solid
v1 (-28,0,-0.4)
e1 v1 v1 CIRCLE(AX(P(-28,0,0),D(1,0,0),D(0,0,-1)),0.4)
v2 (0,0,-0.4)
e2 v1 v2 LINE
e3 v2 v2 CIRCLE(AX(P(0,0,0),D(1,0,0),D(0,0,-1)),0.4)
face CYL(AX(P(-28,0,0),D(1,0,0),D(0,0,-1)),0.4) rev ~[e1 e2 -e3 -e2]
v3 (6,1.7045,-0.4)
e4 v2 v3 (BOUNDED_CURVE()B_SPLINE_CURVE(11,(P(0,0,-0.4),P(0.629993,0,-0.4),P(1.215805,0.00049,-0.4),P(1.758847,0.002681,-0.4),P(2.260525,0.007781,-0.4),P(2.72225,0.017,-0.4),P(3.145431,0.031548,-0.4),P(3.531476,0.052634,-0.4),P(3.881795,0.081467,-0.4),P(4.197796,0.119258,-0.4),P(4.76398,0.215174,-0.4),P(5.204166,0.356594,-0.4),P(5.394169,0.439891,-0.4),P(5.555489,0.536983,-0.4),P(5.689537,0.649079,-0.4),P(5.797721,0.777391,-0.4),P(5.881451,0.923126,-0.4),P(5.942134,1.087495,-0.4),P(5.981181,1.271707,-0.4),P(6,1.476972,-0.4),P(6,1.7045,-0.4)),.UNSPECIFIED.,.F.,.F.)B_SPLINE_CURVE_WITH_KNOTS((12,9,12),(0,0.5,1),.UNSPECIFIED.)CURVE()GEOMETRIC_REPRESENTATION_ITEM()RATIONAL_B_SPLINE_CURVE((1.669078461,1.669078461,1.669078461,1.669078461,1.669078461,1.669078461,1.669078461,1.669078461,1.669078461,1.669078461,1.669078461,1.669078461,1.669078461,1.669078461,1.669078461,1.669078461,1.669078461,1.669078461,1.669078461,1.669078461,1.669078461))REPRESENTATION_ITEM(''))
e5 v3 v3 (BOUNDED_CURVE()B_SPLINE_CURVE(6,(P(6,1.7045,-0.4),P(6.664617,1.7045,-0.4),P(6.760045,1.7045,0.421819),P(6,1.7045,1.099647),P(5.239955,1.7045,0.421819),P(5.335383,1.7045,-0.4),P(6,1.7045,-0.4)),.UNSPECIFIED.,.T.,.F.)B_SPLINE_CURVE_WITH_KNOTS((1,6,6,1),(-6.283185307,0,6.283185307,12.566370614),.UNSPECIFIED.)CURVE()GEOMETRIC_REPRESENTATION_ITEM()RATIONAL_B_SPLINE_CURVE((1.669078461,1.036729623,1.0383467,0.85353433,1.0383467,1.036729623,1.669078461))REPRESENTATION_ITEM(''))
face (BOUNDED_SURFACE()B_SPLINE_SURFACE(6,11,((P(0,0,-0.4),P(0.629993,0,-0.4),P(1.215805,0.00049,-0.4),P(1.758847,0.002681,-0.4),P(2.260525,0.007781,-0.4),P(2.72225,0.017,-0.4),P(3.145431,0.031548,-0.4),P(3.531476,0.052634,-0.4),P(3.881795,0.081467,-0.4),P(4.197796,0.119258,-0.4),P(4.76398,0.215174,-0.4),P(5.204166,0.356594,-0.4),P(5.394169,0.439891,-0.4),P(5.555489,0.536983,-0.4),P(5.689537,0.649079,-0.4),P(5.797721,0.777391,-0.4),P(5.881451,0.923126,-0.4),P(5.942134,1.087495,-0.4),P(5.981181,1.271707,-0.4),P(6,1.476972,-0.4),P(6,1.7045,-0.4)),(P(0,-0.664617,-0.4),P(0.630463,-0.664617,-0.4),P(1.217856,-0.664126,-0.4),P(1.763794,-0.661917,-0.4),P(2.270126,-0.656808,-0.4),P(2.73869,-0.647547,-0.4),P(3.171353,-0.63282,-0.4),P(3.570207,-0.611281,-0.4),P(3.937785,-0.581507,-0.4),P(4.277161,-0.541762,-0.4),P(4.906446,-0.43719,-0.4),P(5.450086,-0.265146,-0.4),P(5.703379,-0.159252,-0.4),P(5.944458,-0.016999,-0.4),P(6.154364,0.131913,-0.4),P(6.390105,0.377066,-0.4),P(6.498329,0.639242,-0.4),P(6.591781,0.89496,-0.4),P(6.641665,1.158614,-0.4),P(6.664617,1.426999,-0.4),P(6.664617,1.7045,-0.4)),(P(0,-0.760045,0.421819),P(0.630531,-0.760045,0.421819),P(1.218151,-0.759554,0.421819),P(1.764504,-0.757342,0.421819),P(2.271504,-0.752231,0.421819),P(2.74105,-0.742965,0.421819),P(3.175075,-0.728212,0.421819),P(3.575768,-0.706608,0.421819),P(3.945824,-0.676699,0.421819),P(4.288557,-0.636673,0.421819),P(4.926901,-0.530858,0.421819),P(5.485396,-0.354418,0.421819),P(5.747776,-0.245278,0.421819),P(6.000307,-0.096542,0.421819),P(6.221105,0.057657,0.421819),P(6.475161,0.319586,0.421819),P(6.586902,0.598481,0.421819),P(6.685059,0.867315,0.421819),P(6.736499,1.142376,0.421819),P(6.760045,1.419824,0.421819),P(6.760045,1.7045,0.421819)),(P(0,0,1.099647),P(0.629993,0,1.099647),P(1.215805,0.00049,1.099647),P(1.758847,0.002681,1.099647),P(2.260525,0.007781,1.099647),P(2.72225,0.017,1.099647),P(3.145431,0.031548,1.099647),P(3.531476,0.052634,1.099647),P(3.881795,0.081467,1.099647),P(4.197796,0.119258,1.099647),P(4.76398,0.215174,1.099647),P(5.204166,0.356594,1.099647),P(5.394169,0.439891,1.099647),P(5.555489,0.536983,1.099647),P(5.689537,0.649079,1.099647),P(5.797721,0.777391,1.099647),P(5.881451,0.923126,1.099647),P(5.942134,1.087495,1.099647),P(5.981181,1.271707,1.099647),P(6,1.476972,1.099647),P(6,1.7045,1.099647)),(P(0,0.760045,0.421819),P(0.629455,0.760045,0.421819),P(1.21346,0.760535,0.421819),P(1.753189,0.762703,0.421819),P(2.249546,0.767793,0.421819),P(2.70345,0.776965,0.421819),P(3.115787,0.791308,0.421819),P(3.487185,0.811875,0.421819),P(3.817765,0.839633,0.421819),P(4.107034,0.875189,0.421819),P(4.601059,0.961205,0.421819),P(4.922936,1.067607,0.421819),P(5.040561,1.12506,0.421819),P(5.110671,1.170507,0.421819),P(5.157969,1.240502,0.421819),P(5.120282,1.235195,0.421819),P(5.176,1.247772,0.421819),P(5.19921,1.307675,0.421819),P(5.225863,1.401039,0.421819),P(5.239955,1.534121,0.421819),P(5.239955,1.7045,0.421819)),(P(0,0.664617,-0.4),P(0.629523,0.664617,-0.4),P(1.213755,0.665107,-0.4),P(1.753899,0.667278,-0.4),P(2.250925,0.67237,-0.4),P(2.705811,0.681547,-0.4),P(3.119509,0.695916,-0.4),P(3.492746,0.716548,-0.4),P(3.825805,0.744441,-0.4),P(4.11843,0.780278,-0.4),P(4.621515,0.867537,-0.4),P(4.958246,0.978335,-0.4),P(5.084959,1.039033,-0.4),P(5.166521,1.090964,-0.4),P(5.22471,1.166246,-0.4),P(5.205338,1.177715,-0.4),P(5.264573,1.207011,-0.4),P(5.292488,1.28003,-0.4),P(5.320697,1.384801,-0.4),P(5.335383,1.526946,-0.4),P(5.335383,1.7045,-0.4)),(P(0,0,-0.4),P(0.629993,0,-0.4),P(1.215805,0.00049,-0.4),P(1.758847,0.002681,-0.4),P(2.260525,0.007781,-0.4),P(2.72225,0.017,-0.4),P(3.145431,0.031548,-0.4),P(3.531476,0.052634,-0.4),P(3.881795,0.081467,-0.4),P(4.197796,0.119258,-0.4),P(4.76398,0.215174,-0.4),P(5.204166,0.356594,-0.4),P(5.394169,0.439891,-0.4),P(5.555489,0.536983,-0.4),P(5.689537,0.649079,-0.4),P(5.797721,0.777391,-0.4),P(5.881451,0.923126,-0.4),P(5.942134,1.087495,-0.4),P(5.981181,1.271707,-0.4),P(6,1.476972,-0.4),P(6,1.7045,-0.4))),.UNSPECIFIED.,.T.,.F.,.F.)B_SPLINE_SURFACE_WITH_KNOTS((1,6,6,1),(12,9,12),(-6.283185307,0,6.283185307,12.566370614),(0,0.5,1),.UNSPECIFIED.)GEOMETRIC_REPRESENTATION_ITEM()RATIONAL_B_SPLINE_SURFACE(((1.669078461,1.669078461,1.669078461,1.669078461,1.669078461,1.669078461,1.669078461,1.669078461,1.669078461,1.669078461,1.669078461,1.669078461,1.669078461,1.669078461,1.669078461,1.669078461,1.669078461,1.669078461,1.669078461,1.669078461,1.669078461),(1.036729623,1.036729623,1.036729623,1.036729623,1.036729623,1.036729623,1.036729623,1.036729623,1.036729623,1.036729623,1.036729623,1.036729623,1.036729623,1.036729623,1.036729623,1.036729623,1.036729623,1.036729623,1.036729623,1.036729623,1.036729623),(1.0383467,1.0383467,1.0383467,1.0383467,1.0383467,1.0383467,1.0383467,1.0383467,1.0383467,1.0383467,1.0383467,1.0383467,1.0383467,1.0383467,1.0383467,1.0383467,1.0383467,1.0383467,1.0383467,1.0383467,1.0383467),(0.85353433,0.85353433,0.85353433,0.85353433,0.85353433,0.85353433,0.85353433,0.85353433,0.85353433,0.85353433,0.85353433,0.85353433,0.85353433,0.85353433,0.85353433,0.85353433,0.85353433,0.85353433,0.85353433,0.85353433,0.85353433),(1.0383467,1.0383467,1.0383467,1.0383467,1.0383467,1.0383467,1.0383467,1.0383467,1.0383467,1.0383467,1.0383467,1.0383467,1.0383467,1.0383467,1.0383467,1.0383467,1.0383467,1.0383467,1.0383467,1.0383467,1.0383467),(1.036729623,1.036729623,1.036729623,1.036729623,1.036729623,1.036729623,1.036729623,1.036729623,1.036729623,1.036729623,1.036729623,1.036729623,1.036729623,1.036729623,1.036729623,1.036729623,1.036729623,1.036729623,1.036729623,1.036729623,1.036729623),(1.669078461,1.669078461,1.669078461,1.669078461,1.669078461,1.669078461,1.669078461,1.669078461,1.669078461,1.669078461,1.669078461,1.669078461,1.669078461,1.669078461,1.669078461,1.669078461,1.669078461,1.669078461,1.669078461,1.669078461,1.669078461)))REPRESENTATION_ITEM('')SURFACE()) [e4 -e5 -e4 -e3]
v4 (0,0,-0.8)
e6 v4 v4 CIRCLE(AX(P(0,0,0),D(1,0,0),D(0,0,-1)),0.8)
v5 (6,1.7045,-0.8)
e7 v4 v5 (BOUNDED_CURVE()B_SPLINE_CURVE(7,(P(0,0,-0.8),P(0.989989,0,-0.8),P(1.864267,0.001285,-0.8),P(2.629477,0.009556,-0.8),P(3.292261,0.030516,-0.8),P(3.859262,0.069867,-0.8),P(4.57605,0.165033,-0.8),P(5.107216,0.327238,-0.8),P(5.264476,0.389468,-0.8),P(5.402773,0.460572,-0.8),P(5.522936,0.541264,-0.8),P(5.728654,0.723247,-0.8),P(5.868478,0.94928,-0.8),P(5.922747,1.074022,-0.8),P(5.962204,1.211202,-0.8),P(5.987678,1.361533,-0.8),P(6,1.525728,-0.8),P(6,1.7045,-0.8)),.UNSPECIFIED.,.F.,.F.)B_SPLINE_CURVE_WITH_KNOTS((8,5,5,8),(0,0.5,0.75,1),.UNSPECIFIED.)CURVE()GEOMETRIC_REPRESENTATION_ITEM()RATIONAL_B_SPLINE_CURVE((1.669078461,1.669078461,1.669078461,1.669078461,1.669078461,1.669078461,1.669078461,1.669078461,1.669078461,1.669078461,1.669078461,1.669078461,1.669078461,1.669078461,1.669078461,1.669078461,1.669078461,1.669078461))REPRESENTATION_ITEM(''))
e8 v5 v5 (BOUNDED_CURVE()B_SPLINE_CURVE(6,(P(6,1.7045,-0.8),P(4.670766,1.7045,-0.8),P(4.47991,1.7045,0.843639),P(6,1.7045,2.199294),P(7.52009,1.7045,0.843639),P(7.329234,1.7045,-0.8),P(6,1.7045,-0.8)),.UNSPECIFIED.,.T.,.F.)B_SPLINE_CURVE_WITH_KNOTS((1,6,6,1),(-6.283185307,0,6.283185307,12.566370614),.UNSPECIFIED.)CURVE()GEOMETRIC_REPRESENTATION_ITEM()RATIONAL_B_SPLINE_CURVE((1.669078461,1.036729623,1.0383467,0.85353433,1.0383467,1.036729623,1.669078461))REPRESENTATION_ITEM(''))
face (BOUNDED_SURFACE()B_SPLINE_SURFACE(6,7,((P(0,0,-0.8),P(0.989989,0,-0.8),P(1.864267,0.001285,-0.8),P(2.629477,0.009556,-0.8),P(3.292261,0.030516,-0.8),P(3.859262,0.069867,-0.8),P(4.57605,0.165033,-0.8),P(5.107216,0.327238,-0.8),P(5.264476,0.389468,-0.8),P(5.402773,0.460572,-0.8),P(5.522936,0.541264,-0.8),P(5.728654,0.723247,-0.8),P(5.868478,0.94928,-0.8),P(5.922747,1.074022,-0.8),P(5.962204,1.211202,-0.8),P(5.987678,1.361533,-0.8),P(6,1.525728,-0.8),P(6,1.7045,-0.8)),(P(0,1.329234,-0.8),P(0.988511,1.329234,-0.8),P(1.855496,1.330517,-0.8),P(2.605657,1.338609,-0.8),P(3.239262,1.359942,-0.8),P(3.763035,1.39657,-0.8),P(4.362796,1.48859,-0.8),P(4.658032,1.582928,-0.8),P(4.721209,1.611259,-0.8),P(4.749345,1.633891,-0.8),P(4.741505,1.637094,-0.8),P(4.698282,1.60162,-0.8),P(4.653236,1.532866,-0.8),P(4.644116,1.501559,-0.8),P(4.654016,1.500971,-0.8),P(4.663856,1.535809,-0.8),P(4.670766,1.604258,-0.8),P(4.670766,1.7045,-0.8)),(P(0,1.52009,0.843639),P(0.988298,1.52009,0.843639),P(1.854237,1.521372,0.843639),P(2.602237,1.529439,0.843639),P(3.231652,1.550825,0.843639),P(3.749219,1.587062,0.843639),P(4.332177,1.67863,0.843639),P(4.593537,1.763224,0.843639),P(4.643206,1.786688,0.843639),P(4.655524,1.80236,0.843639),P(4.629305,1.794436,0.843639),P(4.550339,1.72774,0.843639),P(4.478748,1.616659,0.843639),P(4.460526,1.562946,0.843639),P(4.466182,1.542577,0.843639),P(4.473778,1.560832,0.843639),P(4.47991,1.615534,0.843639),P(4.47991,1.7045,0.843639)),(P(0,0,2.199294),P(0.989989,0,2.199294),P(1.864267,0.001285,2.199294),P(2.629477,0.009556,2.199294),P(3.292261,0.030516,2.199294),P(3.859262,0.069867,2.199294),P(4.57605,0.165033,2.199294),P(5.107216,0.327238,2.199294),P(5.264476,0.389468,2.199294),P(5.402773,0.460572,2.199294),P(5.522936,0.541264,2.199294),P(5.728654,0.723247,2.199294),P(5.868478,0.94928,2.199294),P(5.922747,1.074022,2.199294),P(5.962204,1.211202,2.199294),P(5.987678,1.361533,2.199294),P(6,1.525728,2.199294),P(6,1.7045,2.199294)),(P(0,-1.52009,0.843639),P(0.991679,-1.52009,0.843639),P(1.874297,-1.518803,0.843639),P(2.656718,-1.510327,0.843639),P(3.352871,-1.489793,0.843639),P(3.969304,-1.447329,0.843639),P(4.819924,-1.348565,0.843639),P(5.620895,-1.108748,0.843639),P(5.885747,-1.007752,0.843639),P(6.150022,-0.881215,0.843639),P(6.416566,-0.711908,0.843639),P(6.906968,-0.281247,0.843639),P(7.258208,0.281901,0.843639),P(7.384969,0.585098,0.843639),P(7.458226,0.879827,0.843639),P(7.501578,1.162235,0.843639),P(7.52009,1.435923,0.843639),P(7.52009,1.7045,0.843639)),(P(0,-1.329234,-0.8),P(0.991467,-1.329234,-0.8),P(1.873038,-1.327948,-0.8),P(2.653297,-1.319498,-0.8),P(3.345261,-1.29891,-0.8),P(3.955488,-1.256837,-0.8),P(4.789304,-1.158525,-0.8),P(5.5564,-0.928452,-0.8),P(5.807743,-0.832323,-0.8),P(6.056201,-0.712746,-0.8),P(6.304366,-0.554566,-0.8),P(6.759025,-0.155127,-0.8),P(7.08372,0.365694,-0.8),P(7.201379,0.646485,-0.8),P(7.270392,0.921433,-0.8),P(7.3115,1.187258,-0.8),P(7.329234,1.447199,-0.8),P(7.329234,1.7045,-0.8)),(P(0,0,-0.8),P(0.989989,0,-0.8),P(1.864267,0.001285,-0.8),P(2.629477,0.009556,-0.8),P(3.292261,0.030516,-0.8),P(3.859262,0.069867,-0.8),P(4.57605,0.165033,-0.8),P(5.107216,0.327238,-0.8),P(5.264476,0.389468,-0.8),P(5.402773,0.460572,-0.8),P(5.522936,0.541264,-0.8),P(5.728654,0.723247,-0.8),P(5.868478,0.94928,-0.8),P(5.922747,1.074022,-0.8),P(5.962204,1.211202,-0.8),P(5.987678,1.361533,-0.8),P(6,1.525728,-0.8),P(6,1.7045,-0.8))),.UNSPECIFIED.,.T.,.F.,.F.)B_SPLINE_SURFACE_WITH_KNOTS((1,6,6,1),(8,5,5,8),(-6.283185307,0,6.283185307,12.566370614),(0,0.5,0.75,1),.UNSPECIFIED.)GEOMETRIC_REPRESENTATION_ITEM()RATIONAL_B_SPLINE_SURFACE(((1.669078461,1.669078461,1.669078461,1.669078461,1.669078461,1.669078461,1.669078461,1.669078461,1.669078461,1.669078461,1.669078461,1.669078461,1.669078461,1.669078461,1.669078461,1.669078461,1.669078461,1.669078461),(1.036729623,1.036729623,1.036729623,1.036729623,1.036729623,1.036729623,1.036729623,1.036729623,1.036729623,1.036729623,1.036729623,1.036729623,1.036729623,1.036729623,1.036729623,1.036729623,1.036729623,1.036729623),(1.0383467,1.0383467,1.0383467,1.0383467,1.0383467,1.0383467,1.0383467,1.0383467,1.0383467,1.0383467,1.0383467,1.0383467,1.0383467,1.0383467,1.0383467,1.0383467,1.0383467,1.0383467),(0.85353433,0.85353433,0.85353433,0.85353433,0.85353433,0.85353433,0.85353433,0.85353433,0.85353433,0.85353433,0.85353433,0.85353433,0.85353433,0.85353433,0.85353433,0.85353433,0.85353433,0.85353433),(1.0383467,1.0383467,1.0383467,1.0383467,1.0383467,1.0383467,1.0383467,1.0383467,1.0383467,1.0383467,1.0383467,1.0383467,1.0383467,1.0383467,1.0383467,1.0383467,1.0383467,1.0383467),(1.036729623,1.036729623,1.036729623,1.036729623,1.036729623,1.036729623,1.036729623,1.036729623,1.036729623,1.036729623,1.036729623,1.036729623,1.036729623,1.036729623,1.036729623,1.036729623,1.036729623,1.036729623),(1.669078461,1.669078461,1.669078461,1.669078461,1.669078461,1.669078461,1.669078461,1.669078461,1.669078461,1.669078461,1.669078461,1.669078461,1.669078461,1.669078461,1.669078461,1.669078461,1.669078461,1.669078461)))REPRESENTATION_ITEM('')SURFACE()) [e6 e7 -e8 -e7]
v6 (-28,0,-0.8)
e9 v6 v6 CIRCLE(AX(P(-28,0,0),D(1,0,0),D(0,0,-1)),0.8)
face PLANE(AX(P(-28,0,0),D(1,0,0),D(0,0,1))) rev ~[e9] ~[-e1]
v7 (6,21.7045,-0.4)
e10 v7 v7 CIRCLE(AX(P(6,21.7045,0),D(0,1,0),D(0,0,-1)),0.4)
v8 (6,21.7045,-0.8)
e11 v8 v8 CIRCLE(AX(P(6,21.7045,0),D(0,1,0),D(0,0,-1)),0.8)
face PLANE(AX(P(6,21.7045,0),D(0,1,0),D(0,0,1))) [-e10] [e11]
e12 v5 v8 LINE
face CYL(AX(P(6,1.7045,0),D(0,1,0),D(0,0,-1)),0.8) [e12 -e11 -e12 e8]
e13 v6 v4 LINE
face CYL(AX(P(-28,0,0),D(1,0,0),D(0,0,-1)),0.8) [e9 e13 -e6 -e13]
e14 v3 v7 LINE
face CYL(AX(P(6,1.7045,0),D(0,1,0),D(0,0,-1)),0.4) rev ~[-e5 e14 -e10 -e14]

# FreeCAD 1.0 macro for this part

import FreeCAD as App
import Part
import Sketcher

V = App.Vector

doc = App.newDocument("Part")
body = doc.addObject("PartDesign::Body", "Body")

# Sketch on YZ plane
sketch1 = body.newObject("Sketcher::SketchObject", "Sketch")
sketch1.AttachmentSupport = (doc.getObject("YZ_Plane"), [""])
sketch1.MapMode = "FlatFace"
sketch1.addGeometry([
    Part.Circle(V(0, 0, 0), V(0, 0, 1), 0.8),
    Part.Circle(V(0, 0, 0), V(0, 0, 1), 0.4),
], False)
sketch1.addConstraint([
    Sketcher.Constraint("Coincident", 0, 3, -1, 1),
    Sketcher.Constraint("Coincident", 1, 3, -1, 1),
    Sketcher.Constraint("Diameter", 0, 1.6),
    Sketcher.Constraint("Diameter", 1, 0.8),
])

# Sketch on XY plane
sketch2 = body.newObject("Sketcher::SketchObject", "Sketch001")
sketch2.AttachmentSupport = (doc.getObject("XY_Plane"), [""])
sketch2.MapMode = "FlatFace"
sketch2.addGeometry([
    Part.LineSegment(V(-28, 0, 0), V(0, 0, 0)),
    Part.BSplineCurve([V(0, 0, 0), V(4.619948, 0, 0), V(6, 0.035966, 0), V(6, 1.7045, 0)], [4, 4], [0, 1], False, 3, [1, 1, 1, 1], False),
    Part.LineSegment(V(6, 1.7045, 0), V(6, 21.7045, 0)),
], False)
sketch2.addConstraint([
    Sketcher.Constraint("Block", 1),
    Sketcher.Constraint("Coincident", 0, 2, 1, 1),
    Sketcher.Constraint("Coincident", 1, 2, 2, 1),
    Sketcher.Constraint("Horizontal", 0),
    Sketcher.Constraint("Vertical", 2),
    Sketcher.Constraint("DistanceX", 0, 1, 0, 2, 28.0),
    Sketcher.Constraint("DistanceY", 2, 1, 2, 2, 20.0),
])
doc.recompute()

additivepipe = body.newObject("PartDesign::AdditivePipe", "AdditivePipe")
additivepipe.Profile = sketch1
additivepipe.Spine = (sketch2, ["Edge1", "Edge2", "Edge3"])

doc.recompute()
